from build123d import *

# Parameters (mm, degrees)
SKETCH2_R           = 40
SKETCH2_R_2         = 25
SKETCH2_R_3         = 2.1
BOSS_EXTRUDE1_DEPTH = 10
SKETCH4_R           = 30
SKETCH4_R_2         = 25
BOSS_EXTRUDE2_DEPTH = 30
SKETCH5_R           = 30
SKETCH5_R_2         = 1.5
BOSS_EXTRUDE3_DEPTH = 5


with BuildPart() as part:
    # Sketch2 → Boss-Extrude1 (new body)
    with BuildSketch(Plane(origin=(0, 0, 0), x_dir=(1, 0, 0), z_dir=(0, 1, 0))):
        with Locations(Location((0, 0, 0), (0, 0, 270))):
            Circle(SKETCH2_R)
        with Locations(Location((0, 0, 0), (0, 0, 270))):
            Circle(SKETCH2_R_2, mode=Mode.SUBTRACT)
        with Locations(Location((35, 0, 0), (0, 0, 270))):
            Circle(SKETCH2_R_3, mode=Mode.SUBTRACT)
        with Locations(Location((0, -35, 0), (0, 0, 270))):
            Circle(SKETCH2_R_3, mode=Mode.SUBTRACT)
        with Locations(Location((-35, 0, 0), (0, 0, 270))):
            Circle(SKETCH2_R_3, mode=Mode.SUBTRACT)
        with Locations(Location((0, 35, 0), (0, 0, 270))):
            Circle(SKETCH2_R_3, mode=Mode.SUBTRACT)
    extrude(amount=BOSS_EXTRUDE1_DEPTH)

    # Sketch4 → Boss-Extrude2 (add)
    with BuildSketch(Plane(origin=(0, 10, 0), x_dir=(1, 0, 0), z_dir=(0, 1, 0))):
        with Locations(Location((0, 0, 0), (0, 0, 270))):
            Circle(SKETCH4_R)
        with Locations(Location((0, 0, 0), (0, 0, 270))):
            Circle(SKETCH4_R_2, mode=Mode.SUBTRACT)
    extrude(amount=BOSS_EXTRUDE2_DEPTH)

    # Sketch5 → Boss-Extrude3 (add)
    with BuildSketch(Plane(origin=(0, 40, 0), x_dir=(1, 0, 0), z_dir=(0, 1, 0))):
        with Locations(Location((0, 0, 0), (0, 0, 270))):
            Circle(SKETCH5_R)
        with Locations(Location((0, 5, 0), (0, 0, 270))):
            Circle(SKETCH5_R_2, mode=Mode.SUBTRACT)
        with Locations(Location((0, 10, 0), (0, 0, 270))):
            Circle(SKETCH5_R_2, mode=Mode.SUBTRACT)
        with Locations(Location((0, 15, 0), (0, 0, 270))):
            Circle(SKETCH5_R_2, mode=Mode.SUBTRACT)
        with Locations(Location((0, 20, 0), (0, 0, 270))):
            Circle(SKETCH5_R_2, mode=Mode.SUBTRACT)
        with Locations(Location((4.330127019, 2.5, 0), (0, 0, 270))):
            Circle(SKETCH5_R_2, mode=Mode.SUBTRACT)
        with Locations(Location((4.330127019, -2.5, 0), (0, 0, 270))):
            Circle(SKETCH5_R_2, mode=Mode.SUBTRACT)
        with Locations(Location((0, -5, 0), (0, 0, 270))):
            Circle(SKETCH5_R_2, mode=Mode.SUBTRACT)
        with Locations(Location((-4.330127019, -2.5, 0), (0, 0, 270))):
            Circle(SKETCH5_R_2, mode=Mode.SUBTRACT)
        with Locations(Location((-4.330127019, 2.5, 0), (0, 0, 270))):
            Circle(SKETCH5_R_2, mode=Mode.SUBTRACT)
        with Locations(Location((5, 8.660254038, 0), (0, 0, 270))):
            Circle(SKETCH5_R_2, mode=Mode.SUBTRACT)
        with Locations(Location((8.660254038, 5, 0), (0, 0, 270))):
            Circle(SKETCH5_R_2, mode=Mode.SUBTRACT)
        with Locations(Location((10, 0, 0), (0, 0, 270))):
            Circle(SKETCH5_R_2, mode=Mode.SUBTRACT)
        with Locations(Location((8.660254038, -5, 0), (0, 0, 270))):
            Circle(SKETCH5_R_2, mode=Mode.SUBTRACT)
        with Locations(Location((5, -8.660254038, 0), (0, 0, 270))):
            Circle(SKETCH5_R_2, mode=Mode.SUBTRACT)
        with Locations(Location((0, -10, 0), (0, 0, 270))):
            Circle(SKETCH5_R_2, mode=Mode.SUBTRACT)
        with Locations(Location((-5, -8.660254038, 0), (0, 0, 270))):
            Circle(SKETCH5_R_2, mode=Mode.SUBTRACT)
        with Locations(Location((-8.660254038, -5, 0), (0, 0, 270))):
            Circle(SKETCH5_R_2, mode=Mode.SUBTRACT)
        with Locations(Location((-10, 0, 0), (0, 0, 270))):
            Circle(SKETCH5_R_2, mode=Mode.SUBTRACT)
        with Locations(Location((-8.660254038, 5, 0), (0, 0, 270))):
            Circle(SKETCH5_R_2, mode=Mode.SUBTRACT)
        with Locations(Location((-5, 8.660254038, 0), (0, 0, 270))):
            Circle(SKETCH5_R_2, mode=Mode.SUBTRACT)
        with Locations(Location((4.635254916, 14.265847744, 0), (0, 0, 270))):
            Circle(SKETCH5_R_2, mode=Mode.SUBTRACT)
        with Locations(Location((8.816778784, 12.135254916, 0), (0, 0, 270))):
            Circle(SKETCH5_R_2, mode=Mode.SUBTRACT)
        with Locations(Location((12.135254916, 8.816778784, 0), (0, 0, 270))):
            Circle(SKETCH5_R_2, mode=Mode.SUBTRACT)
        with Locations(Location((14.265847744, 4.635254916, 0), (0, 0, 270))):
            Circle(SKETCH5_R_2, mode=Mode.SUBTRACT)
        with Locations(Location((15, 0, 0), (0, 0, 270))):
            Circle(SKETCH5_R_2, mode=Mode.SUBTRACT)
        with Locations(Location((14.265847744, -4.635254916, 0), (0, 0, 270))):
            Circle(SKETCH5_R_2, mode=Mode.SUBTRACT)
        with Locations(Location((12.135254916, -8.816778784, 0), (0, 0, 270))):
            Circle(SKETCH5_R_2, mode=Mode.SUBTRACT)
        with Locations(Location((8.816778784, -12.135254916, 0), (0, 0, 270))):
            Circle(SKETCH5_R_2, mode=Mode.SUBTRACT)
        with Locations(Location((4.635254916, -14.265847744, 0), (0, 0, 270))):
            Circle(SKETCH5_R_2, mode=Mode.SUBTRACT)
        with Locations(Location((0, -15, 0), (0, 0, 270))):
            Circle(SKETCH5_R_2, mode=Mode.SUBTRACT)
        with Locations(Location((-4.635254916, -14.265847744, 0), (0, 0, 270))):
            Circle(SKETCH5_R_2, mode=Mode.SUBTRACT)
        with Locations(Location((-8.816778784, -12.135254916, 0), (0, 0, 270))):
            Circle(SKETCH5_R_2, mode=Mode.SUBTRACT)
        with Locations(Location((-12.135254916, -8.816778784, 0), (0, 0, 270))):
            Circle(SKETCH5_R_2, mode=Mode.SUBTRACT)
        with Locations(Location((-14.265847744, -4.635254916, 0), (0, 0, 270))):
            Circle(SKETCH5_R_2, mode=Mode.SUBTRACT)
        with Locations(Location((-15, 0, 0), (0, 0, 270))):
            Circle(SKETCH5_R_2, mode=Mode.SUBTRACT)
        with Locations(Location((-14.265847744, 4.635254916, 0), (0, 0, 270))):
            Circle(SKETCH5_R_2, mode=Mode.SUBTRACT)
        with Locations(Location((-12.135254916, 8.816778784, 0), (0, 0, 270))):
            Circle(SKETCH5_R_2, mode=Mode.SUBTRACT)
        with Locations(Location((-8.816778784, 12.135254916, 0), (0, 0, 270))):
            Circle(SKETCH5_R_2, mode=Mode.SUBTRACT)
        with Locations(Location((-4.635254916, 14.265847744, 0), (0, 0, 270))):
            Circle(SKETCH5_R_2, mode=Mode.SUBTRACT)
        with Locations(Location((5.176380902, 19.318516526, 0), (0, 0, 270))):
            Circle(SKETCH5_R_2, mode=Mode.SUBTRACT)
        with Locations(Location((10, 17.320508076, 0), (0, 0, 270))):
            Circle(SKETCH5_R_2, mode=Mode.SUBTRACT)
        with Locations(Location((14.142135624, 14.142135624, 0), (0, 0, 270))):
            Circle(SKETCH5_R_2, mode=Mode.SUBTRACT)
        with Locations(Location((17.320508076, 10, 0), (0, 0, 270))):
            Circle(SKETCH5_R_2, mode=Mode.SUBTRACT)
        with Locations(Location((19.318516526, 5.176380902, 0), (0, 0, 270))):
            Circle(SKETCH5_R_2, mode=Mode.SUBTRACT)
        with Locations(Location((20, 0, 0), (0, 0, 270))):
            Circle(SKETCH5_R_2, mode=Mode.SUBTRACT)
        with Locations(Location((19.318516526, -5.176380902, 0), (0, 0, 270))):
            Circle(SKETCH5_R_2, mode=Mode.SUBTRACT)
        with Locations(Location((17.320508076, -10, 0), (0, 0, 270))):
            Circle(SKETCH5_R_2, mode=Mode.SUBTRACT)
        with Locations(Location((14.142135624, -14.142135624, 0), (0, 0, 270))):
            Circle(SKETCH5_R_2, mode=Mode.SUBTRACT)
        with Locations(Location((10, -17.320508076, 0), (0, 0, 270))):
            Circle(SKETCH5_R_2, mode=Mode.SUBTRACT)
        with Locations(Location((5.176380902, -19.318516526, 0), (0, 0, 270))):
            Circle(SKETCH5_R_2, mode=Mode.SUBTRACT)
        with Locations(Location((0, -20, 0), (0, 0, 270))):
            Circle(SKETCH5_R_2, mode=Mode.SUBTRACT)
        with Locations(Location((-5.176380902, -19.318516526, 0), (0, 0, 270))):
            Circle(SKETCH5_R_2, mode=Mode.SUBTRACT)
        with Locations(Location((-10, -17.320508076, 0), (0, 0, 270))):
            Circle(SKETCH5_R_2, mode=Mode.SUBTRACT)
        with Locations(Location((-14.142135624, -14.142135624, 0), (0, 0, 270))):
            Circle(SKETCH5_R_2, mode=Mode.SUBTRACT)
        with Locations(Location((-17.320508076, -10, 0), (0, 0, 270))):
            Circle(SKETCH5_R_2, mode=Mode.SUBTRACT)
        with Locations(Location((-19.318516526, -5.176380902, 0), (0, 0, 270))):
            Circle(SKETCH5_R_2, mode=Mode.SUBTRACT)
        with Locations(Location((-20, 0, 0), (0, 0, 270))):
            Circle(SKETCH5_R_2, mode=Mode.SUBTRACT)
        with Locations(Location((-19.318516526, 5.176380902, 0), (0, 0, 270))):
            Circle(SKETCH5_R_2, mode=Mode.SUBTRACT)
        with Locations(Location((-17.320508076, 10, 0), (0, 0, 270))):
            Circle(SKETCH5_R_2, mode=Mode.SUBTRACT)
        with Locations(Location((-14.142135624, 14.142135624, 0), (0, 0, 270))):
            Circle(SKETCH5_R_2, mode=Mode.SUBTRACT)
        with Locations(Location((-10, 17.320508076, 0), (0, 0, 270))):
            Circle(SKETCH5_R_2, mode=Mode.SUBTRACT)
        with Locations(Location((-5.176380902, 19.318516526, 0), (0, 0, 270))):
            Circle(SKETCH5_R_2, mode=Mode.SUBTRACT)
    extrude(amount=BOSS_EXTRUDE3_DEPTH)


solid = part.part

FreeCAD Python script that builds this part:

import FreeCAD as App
import Part
import Sketcher
from FreeCAD import Vector
Q = App.Units.Quantity

doc = App.newDocument("Part")
body = doc.addObject("PartDesign::Body", "Body")

sketch1 = body.newObject("Sketcher::SketchObject", "Sketch")
sketch1.AttachmentSupport = (doc.getObject("XZ_Plane"), [""])
sketch1.MapMode = "FlatFace"
sketch1.addGeometry(Part.Circle(Vector(0, 0, 0), Vector(0, 0, 1), 40), False)
sketch1.addGeometry(Part.Circle(Vector(0, -35, 0), Vector(0, 0, 1), 2.1), False)
sketch1.addGeometry(Part.Circle(Vector(-35, 0, 0), Vector(0, 0, 1), 2.1), False)
sketch1.addGeometry(Part.Circle(Vector(0, 0, 0), Vector(0, 0, 1), 25), False)
sketch1.addGeometry(Part.Circle(Vector(35, 0, 0), Vector(0, 0, 1), 2.1), False)
sketch1.addGeometry(Part.Circle(Vector(0, 35, 0), Vector(0, 0, 1), 2.1), False)
sketch1.addConstraint(Sketcher.Constraint("Coincident", 0, 3, -1, 1))
sketch1.addConstraint(Sketcher.Constraint("Coincident", 3, 3, -1, 1))
sketch1.addConstraint(Sketcher.Constraint("Equal", 1, 2))
sketch1.addConstraint(Sketcher.Constraint("Equal", 2, 4))
sketch1.addConstraint(Sketcher.Constraint("Equal", 4, 5))
sketch1.addConstraint(Sketcher.Constraint("Symmetric", 2, 3, 4, 3, -1, 1))
sketch1.addConstraint(Sketcher.Constraint("Symmetric", 1, 3, 5, 3, -1, 1))
sketch1.addConstraint(Sketcher.Constraint("PointOnObject", 1, 3, -2))
sketch1.addConstraint(Sketcher.Constraint("PointOnObject", 2, 3, -1))
sketch1.addConstraint(Sketcher.Constraint("Diameter", 0, Q("80 mm")))
sketch1.addConstraint(Sketcher.Constraint("Diameter", 3, Q("50 mm")))
sketch1.addConstraint(Sketcher.Constraint("Diameter", 1, Q("4.2 mm")))
sketch1.addConstraint(Sketcher.Constraint("DistanceY", 1, 3, -1, 1, Q("35 mm")))
sketch1.addConstraint(Sketcher.Constraint("DistanceX", 2, 3, -1, 1, Q("35 mm")))
pad1 = body.newObject("PartDesign::Pad", "Pad")
pad1.Profile = sketch1
pad1.Length = 10
pad1.Reversed = True

sketch2 = body.newObject("Sketcher::SketchObject", "Sketch001")
sketch2.AttachmentSupport = (doc.getObject("XZ_Plane"), [""])
sketch2.MapMode = "FlatFace"
sketch2.AttachmentOffset = App.Placement(Vector(0, 0, -10), App.Rotation())
sketch2.addGeometry(Part.Circle(Vector(0, 0, 0), Vector(0, 0, 1), 30), False)
sketch2.addGeometry(Part.Circle(Vector(0, 0, 0), Vector(0, 0, 1), 25), False)
sketch2.addConstraint(Sketcher.Constraint("Coincident", 0, 3, -1, 1))
sketch2.addConstraint(Sketcher.Constraint("Coincident", 1, 3, -1, 1))
sketch2.addConstraint(Sketcher.Constraint("Diameter", 0, Q("60 mm")))
sketch2.addConstraint(Sketcher.Constraint("Diameter", 1, Q("50 mm")))
pad2 = body.newObject("PartDesign::Pad", "Pad001")
pad2.Profile = sketch2
pad2.Length = 30
pad2.Reversed = True

sketch3 = body.newObject("Sketcher::SketchObject", "Sketch002")
sketch3.AttachmentSupport = (doc.getObject("XZ_Plane"), [""])
sketch3.MapMode = "FlatFace"
sketch3.AttachmentOffset = App.Placement(Vector(0, 0, -40), App.Rotation())
sketch3.addGeometry(Part.Circle(Vector(0, 0, 0), Vector(0, 0, 1), 30), False)
sketch3.addGeometry(Part.Circle(Vector(-14.142136, -14.142136, 0), Vector(0, 0, 1), 1.5), False)
sketch3.addGeometry(Part.Circle(Vector(-17.320508, -10, 0), Vector(0, 0, 1), 1.5), False)
sketch3.addGeometry(Part.Circle(Vector(-19.318517, -5.176381, 0), Vector(0, 0, 1), 1.5), False)
sketch3.addGeometry(Part.Circle(Vector(-12.135255, -8.816779, 0), Vector(0, 0, 1), 1.5), False)
sketch3.addGeometry(Part.Circle(Vector(-14.265848, -4.635255, 0), Vector(0, 0, 1), 1.5), False)
sketch3.addGeometry(Part.Circle(Vector(-10, -17.320508, 0), Vector(0, 0, 1), 1.5), False)
sketch3.addGeometry(Part.Circle(Vector(-8.816779, -12.135255, 0), Vector(0, 0, 1), 1.5), False)
sketch3.addGeometry(Part.Circle(Vector(-5.176381, -19.318517, 0), Vector(0, 0, 1), 1.5), False)
sketch3.addGeometry(Part.Circle(Vector(0, -20, 0), Vector(0, 0, 1), 1.5), False)
sketch3.addGeometry(Part.Circle(Vector(-4.635255, -14.265848, 0), Vector(0, 0, 1), 1.5), False)
sketch3.addGeometry(Part.Circle(Vector(0, -15, 0), Vector(0, 0, 1), 1.5), False)
sketch3.addGeometry(Part.Circle(Vector(-8.660254, -5, 0), Vector(0, 0, 1), 1.5), False)
sketch3.addGeometry(Part.Circle(Vector(-5, -8.660254, 0), Vector(0, 0, 1), 1.5), False)
sketch3.addGeometry(Part.Circle(Vector(0, -10, 0), Vector(0, 0, 1), 1.5), False)
sketch3.addGeometry(Part.Circle(Vector(-4.330127, -2.5, 0), Vector(0, 0, 1), 1.5), False)
sketch3.addGeometry(Part.Circle(Vector(-20, 0, 0), Vector(0, 0, 1), 1.5), False)
sketch3.addGeometry(Part.Circle(Vector(-19.318517, 5.176381, 0), Vector(0, 0, 1), 1.5), False)
sketch3.addGeometry(Part.Circle(Vector(-17.320508, 10, 0), Vector(0, 0, 1), 1.5), False)
sketch3.addGeometry(Part.Circle(Vector(-15, 0, 0), Vector(0, 0, 1), 1.5), False)
sketch3.addGeometry(Part.Circle(Vector(-14.265848, 4.635255, 0), Vector(0, 0, 1), 1.5), False)
sketch3.addGeometry(Part.Circle(Vector(-12.135255, 8.816779, 0), Vector(0, 0, 1), 1.5), False)
sketch3.addGeometry(Part.Circle(Vector(-14.142136, 14.142136, 0), Vector(0, 0, 1), 1.5), False)
sketch3.addGeometry(Part.Circle(Vector(-10, 0, 0), Vector(0, 0, 1), 1.5), False)
sketch3.addGeometry(Part.Circle(Vector(-8.660254, 5, 0), Vector(0, 0, 1), 1.5), False)
sketch3.addGeometry(Part.Circle(Vector(-4.330127, 2.5, 0), Vector(0, 0, 1), 1.5), False)
sketch3.addGeometry(Part.Circle(Vector(-5, 8.660254, 0), Vector(0, 0, 1), 1.5), False)
sketch3.addGeometry(Part.Circle(Vector(-8.816779, 12.135255, 0), Vector(0, 0, 1), 1.5), False)
sketch3.addGeometry(Part.Circle(Vector(-10, 17.320508, 0), Vector(0, 0, 1), 1.5), False)
sketch3.addGeometry(Part.Circle(Vector(-4.635255, 14.265848, 0), Vector(0, 0, 1), 1.5), False)
sketch3.addGeometry(Part.Circle(Vector(-5.176381, 19.318517, 0), Vector(0, 0, 1), 1.5), False)
sketch3.addGeometry(Part.Circle(Vector(5.176381, -19.318517, 0), Vector(0, 0, 1), 1.5), False)
sketch3.addGeometry(Part.Circle(Vector(4.635255, -14.265848, 0), Vector(0, 0, 1), 1.5), False)
sketch3.addGeometry(Part.Circle(Vector(10, -17.320508, 0), Vector(0, 0, 1), 1.5), False)
sketch3.addGeometry(Part.Circle(Vector(8.816779, -12.135255, 0), Vector(0, 0, 1), 1.5), False)
sketch3.addGeometry(Part.Circle(Vector(5, -8.660254, 0), Vector(0, 0, 1), 1.5), False)
sketch3.addGeometry(Part.Circle(Vector(0, -5, 0), Vector(0, 0, 1), 1.5), False)
sketch3.addGeometry(Part.Circle(Vector(4.330127, -2.5, 0), Vector(0, 0, 1), 1.5), False)
sketch3.addGeometry(Part.Circle(Vector(8.660254, -5, 0), Vector(0, 0, 1), 1.5), False)
sketch3.addGeometry(Part.Circle(Vector(14.142136, -14.142136, 0), Vector(0, 0, 1), 1.5), False)
sketch3.addGeometry(Part.Circle(Vector(12.135255, -8.816779, 0), Vector(0, 0, 1), 1.5), False)
sketch3.addGeometry(Part.Circle(Vector(14.265848, -4.635255, 0), Vector(0, 0, 1), 1.5), False)
sketch3.addGeometry(Part.Circle(Vector(17.320508, -10, 0), Vector(0, 0, 1), 1.5), False)
sketch3.addGeometry(Part.Circle(Vector(19.318517, -5.176381, 0), Vector(0, 0, 1), 1.5), False)
sketch3.addGeometry(Part.Circle(Vector(20, 0, 0), Vector(0, 0, 1), 1.5), False)
sketch3.addGeometry(Part.Circle(Vector(0, 5, 0), Vector(0, 0, 1), 1.5), False)
sketch3.addGeometry(Part.Circle(Vector(4.330127, 2.5, 0), Vector(0, 0, 1), 1.5), False)
sketch3.addGeometry(Part.Circle(Vector(0, 10, 0), Vector(0, 0, 1), 1.5), False)
sketch3.addGeometry(Part.Circle(Vector(5, 8.660254, 0), Vector(0, 0, 1), 1.5), False)
sketch3.addGeometry(Part.Circle(Vector(10, 0, 0), Vector(0, 0, 1), 1.5), False)
sketch3.addGeometry(Part.Circle(Vector(8.660254, 5, 0), Vector(0, 0, 1), 1.5), False)
sketch3.addGeometry(Part.Circle(Vector(0, 15, 0), Vector(0, 0, 1), 1.5), False)
sketch3.addGeometry(Part.Circle(Vector(4.635255, 14.265848, 0), Vector(0, 0, 1), 1.5), False)
sketch3.addGeometry(Part.Circle(Vector(0, 20, 0), Vector(0, 0, 1), 1.5), False)
sketch3.addGeometry(Part.Circle(Vector(5.176381, 19.318517, 0), Vector(0, 0, 1), 1.5), False)
sketch3.addGeometry(Part.Circle(Vector(8.816779, 12.135255, 0), Vector(0, 0, 1), 1.5), False)
sketch3.addGeometry(Part.Circle(Vector(10, 17.320508, 0), Vector(0, 0, 1), 1.5), False)
sketch3.addGeometry(Part.Circle(Vector(15, 0, 0), Vector(0, 0, 1), 1.5), False)
sketch3.addGeometry(Part.Circle(Vector(14.265848, 4.635255, 0), Vector(0, 0, 1), 1.5), False)
sketch3.addGeometry(Part.Circle(Vector(12.135255, 8.816779, 0), Vector(0, 0, 1), 1.5), False)
sketch3.addGeometry(Part.Circle(Vector(19.318517, 5.176381, 0), Vector(0, 0, 1), 1.5), False)
sketch3.addGeometry(Part.Circle(Vector(17.320508, 10, 0), Vector(0, 0, 1), 1.5), False)
sketch3.addGeometry(Part.Circle(Vector(14.142136, 14.142136, 0), Vector(0, 0, 1), 1.5), False)
sketch3.addConstraint(Sketcher.Constraint("Coincident", 0, 3, -1, 1))
sketch3.addConstraint(Sketcher.Constraint("Equal", 1, 2))
sketch3.addConstraint(Sketcher.Constraint("Equal", 2, 3))
sketch3.addConstraint(Sketcher.Constraint("Equal", 3, 4))
sketch3.addConstraint(Sketcher.Constraint("Equal", 4, 5))
sketch3.addConstraint(Sketcher.Constraint("Equal", 5, 6))
sketch3.addConstraint(Sketcher.Constraint("Equal", 6, 7))
sketch3.addConstraint(Sketcher.Constraint("Equal", 7, 8))
sketch3.addConstraint(Sketcher.Constraint("Equal", 8, 9))
sketch3.addConstraint(Sketcher.Constraint("Equal", 9, 10))
sketch3.addConstraint(Sketcher.Constraint("Equal", 10, 11))
sketch3.addConstraint(Sketcher.Constraint("Equal", 11, 12))
sketch3.addConstraint(Sketcher.Constraint("Equal", 12, 13))
sketch3.addConstraint(Sketcher.Constraint("Equal", 13, 14))
sketch3.addConstraint(Sketcher.Constraint("Equal", 14, 15))
sketch3.addConstraint(Sketcher.Constraint("Equal", 15, 16))
sketch3.addConstraint(Sketcher.Constraint("Equal", 16, 17))
sketch3.addConstraint(Sketcher.Constraint("Equal", 17, 18))
sketch3.addConstraint(Sketcher.Constraint("Equal", 18, 19))
sketch3.addConstraint(Sketcher.Constraint("Equal", 19, 20))
sketch3.addConstraint(Sketcher.Constraint("Equal", 20, 21))
sketch3.addConstraint(Sketcher.Constraint("Equal", 21, 22))
sketch3.addConstraint(Sketcher.Constraint("Equal", 22, 23))
sketch3.addConstraint(Sketcher.Constraint("Equal", 23, 24))
sketch3.addConstraint(Sketcher.Constraint("Equal", 24, 25))
sketch3.addConstraint(Sketcher.Constraint("Equal", 25, 26))
sketch3.addConstraint(Sketcher.Constraint("Equal", 26, 27))
sketch3.addConstraint(Sketcher.Constraint("Equal", 27, 28))
sketch3.addConstraint(Sketcher.Constraint("Equal", 28, 29))
sketch3.addConstraint(Sketcher.Constraint("Equal", 29, 30))
sketch3.addConstraint(Sketcher.Constraint("Equal", 30, 31))
sketch3.addConstraint(Sketcher.Constraint("Equal", 31, 32))
sketch3.addConstraint(Sketcher.Constraint("Equal", 32, 33))
sketch3.addConstraint(Sketcher.Constraint("Equal", 33, 34))
sketch3.addConstraint(Sketcher.Constraint("Equal", 34, 35))
sketch3.addConstraint(Sketcher.Constraint("Equal", 35, 36))
sketch3.addConstraint(Sketcher.Constraint("Equal", 36, 37))
sketch3.addConstraint(Sketcher.Constraint("Equal", 37, 38))
sketch3.addConstraint(Sketcher.Constraint("Equal", 38, 39))
sketch3.addConstraint(Sketcher.Constraint("Equal", 39, 40))
sketch3.addConstraint(Sketcher.Constraint("Equal", 40, 41))
sketch3.addConstraint(Sketcher.Constraint("Equal", 41, 42))
sketch3.addConstraint(Sketcher.Constraint("Equal", 42, 43))
sketch3.addConstraint(Sketcher.Constraint("Equal", 43, 44))
sketch3.addConstraint(Sketcher.Constraint("Equal", 44, 45))
sketch3.addConstraint(Sketcher.Constraint("Equal", 45, 46))
sketch3.addConstraint(Sketcher.Constraint("Equal", 46, 47))
sketch3.addConstraint(Sketcher.Constraint("Equal", 47, 48))
sketch3.addConstraint(Sketcher.Constraint("Equal", 48, 49))
sketch3.addConstraint(Sketcher.Constraint("Equal", 49, 50))
sketch3.addConstraint(Sketcher.Constraint("Equal", 50, 51))
sketch3.addConstraint(Sketcher.Constraint("Equal", 51, 52))
sketch3.addConstraint(Sketcher.Constraint("Equal", 52, 53))
sketch3.addConstraint(Sketcher.Constraint("Equal", 53, 54))
sketch3.addConstraint(Sketcher.Constraint("Equal", 54, 55))
sketch3.addConstraint(Sketcher.Constraint("Equal", 55, 56))
sketch3.addConstraint(Sketcher.Constraint("Equal", 56, 57))
sketch3.addConstraint(Sketcher.Constraint("Equal", 57, 58))
sketch3.addConstraint(Sketcher.Constraint("Equal", 58, 59))
sketch3.addConstraint(Sketcher.Constraint("Equal", 59, 60))
sketch3.addConstraint(Sketcher.Constraint("Equal", 60, 61))
sketch3.addConstraint(Sketcher.Constraint("Equal", 61, 62))
sketch3.addConstraint(Sketcher.Constraint("Symmetric", 30, 3, 31, 3, -1, 1))
sketch3.addConstraint(Sketcher.Constraint("Symmetric", 29, 3, 32, 3, -1, 1))
sketch3.addConstraint(Sketcher.Constraint("Symmetric", 28, 3, 33, 3, -1, 1))
sketch3.addConstraint(Sketcher.Constraint("Symmetric", 27, 3, 34, 3, -1, 1))
sketch3.addConstraint(Sketcher.Constraint("Symmetric", 26, 3, 35, 3, -1, 1))
sketch3.addConstraint(Sketcher.Constraint("Symmetric", 25, 3, 37, 3, -1, 1))
sketch3.addConstraint(Sketcher.Constraint("Symmetric", 24, 3, 38, 3, -1, 1))
sketch3.addConstraint(Sketcher.Constraint("Symmetric", 22, 3, 39, 3, -1, 1))
sketch3.addConstraint(Sketcher.Constraint("Symmetric", 21, 3, 40, 3, -1, 1))
sketch3.addConstraint(Sketcher.Constraint("Symmetric", 20, 3, 41, 3, -1, 1))
sketch3.addConstraint(Sketcher.Constraint("Symmetric", 18, 3, 42, 3, -1, 1))
sketch3.addConstraint(Sketcher.Constraint("Symmetric", 17, 3, 43, 3, -1, 1))
sketch3.addConstraint(Sketcher.Constraint("Symmetric", 16, 3, 44, 3, -1, 1))
sketch3.addConstraint(Sketcher.Constraint("Symmetric", 36, 3, 45, 3, -1, 1))
sketch3.addConstraint(Sketcher.Constraint("Symmetric", 15, 3, 46, 3, -1, 1))
sketch3.addConstraint(Sketcher.Constraint("Symmetric", 14, 3, 47, 3, -1, 1))
sketch3.addConstraint(Sketcher.Constraint("Symmetric", 13, 3, 48, 3, -1, 1))
sketch3.addConstraint(Sketcher.Constraint("Symmetric", 23, 3, 49, 3, -1, 1))
sketch3.addConstraint(Sketcher.Constraint("Symmetric", 12, 3, 50, 3, -1, 1))
sketch3.addConstraint(Sketcher.Constraint("Symmetric", 11, 3, 51, 3, -1, 1))
sketch3.addConstraint(Sketcher.Constraint("Symmetric", 10, 3, 52, 3, -1, 1))
sketch3.addConstraint(Sketcher.Constraint("Symmetric", 9, 3, 53, 3, -1, 1))
sketch3.addConstraint(Sketcher.Constraint("Symmetric", 8, 3, 54, 3, -1, 1))
sketch3.addConstraint(Sketcher.Constraint("Symmetric", 7, 3, 55, 3, -1, 1))
sketch3.addConstraint(Sketcher.Constraint("Symmetric", 6, 3, 56, 3, -1, 1))
sketch3.addConstraint(Sketcher.Constraint("Symmetric", 19, 3, 57, 3, -1, 1))
sketch3.addConstraint(Sketcher.Constraint("Symmetric", 5, 3, 58, 3, -1, 1))
sketch3.addConstraint(Sketcher.Constraint("Symmetric", 4, 3, 59, 3, -1, 1))
sketch3.addConstraint(Sketcher.Constraint("Symmetric", 3, 3, 60, 3, -1, 1))
sketch3.addConstraint(Sketcher.Constraint("Symmetric", 2, 3, 61, 3, -1, 1))
sketch3.addConstraint(Sketcher.Constraint("Symmetric", 1, 3, 62, 3, -1, 1))
sketch3.addConstraint(Sketcher.Constraint("Symmetric", 8, 3, 31, 3, -2))
sketch3.addConstraint(Sketcher.Constraint("Symmetric", 10, 3, 32, 3, -2))
sketch3.addConstraint(Sketcher.Constraint("Symmetric", 6, 3, 33, 3, -2))
sketch3.addConstraint(Sketcher.Constraint("Symmetric", 7, 3, 34, 3, -2))
sketch3.addConstraint(Sketcher.Constraint("Symmetric", 13, 3, 35, 3, -2))
sketch3.addConstraint(Sketcher.Constraint("Symmetric", 15, 3, 37, 3, -2))
sketch3.addConstraint(Sketcher.Constraint("Symmetric", 12, 3, 38, 3, -2))
sketch3.addConstraint(Sketcher.Constraint("Symmetric", 1, 3, 39, 3, -2))
sketch3.addConstraint(Sketcher.Constraint("Symmetric", 4, 3, 40, 3, -2))
sketch3.addConstraint(Sketcher.Constraint("Symmetric", 5, 3, 41, 3, -2))
sketch3.addConstraint(Sketcher.Constraint("Symmetric", 2, 3, 42, 3, -2))
sketch3.addConstraint(Sketcher.Constraint("Symmetric", 3, 3, 43, 3, -2))
sketch3.addConstraint(Sketcher.Constraint("PointOnObject", 9, 3, -2))
sketch3.addConstraint(Sketcher.Constraint("PointOnObject", 11, 3, -2))
sketch3.addConstraint(Sketcher.Constraint("PointOnObject", 14, 3, -2))
sketch3.addConstraint(Sketcher.Constraint("PointOnObject", 16, 3, -1))
sketch3.addConstraint(Sketcher.Constraint("PointOnObject", 19, 3, -1))
sketch3.addConstraint(Sketcher.Constraint("PointOnObject", 23, 3, -1))
sketch3.addConstraint(Sketcher.Constraint("PointOnObject", 36, 3, -2))
sketch3.addConstraint(Sketcher.Constraint("Horizontal", 2, 3, 14, 3))
sketch3.addConstraint(Sketcher.Constraint("Horizontal", 12, 3, 36, 3))
sketch3.addConstraint(Sketcher.Constraint("Vertical", 6, 3, 23, 3))
sketch3.addConstraint(Sketcher.Constraint("Diameter", 0, Q("60 mm")))
sketch3.addConstraint(Sketcher.Constraint("Diameter", 1, Q("3 mm")))
sketch3.addConstraint(Sketcher.Constraint("DistanceY", 2, 3, -1, 1, Q("10 mm")))
sketch3.addConstraint(Sketcher.Constraint("DistanceX", 6, 3, -1, 1, Q("10 mm")))
sketch3.addConstraint(Sketcher.Constraint("DistanceY", 9, 3, -1, 1, Q("20 mm")))
sketch3.addConstraint(Sketcher.Constraint("DistanceY", 11, 3, -1, 1, Q("15 mm")))
sketch3.addConstraint(Sketcher.Constraint("DistanceY", 12, 3, -1, 1, Q("5 mm")))
sketch3.addConstraint(Sketcher.Constraint("DistanceX", 13, 3, -1, 1, Q("5 mm")))
sketch3.addConstraint(Sketcher.Constraint("DistanceX", 16, 3, -1, 1, Q("20 mm")))
sketch3.addConstraint(Sketcher.Constraint("DistanceX", 19, 3, -1, 1, Q("15 mm")))
sketch3.addConstraint(Sketcher.Constraint("DistanceY", 15, 3, -1, 1, Q("2.5 mm")))
sketch3.addConstraint(Sketcher.Constraint("DistanceX", 2, 3, -1, 1, Q("17.320508 mm")))
sketch3.addConstraint(Sketcher.Constraint("DistanceY", 3, 3, -1, 1, Q("5.176381 mm")))
sketch3.addConstraint(Sketcher.Constraint("DistanceY", 4, 3, -1, 1, Q("8.816779 mm")))
sketch3.addConstraint(Sketcher.Constraint("DistanceY", 6, 3, -1, 1, Q("17.320508 mm")))
sketch3.addConstraint(Sketcher.Constraint("DistanceX", 7, 3, -1, 1, Q("8.816779 mm")))
sketch3.addConstraint(Sketcher.Constraint("DistanceX", 8, 3, -1, 1, Q("5.176381 mm")))
sketch3.addConstraint(Sketcher.Constraint("DistanceX", 1, 3, -1, 1, Q("14.142136 mm")))
sketch3.addConstraint(Sketcher.Constraint("DistanceY", 1, 3, -1, 1, Q("14.142136 mm")))
sketch3.addConstraint(Sketcher.Constraint("DistanceX", 3, 3, -1, 1, Q("19.318517 mm")))
sketch3.addConstraint(Sketcher.Constraint("DistanceX", 4, 3, -1, 1, Q("12.135255 mm")))
sketch3.addConstraint(Sketcher.Constraint("DistanceX", 5, 3, -1, 1, Q("14.265848 mm")))
sketch3.addConstraint(Sketcher.Constraint("DistanceY", 5, 3, -1, 1, Q("4.635255 mm")))
sketch3.addConstraint(Sketcher.Constraint("DistanceY", 7, 3, -1, 1, Q("12.135255 mm")))
sketch3.addConstraint(Sketcher.Constraint("DistanceY", 8, 3, -1, 1, Q("19.318517 mm")))
sketch3.addConstraint(Sketcher.Constraint("DistanceX", 10, 3, -1, 1, Q("4.635255 mm")))
sketch3.addConstraint(Sketcher.Constraint("DistanceY", 10, 3, -1, 1, Q("14.265848 mm")))
sketch3.addConstraint(Sketcher.Constraint("DistanceX", 12, 3, -1, 1, Q("8.660254 mm")))
sketch3.addConstraint(Sketcher.Constraint("DistanceY", 13, 3, -1, 1, Q("8.660254 mm")))
sketch3.addConstraint(Sketcher.Constraint("DistanceX", 15, 3, -1, 1, Q("4.330127 mm")))
pad3 = body.newObject("PartDesign::Pad", "Pad002")
pad3.Profile = sketch3
pad3.Length = 5
pad3.Reversed = True

doc.recompute()
